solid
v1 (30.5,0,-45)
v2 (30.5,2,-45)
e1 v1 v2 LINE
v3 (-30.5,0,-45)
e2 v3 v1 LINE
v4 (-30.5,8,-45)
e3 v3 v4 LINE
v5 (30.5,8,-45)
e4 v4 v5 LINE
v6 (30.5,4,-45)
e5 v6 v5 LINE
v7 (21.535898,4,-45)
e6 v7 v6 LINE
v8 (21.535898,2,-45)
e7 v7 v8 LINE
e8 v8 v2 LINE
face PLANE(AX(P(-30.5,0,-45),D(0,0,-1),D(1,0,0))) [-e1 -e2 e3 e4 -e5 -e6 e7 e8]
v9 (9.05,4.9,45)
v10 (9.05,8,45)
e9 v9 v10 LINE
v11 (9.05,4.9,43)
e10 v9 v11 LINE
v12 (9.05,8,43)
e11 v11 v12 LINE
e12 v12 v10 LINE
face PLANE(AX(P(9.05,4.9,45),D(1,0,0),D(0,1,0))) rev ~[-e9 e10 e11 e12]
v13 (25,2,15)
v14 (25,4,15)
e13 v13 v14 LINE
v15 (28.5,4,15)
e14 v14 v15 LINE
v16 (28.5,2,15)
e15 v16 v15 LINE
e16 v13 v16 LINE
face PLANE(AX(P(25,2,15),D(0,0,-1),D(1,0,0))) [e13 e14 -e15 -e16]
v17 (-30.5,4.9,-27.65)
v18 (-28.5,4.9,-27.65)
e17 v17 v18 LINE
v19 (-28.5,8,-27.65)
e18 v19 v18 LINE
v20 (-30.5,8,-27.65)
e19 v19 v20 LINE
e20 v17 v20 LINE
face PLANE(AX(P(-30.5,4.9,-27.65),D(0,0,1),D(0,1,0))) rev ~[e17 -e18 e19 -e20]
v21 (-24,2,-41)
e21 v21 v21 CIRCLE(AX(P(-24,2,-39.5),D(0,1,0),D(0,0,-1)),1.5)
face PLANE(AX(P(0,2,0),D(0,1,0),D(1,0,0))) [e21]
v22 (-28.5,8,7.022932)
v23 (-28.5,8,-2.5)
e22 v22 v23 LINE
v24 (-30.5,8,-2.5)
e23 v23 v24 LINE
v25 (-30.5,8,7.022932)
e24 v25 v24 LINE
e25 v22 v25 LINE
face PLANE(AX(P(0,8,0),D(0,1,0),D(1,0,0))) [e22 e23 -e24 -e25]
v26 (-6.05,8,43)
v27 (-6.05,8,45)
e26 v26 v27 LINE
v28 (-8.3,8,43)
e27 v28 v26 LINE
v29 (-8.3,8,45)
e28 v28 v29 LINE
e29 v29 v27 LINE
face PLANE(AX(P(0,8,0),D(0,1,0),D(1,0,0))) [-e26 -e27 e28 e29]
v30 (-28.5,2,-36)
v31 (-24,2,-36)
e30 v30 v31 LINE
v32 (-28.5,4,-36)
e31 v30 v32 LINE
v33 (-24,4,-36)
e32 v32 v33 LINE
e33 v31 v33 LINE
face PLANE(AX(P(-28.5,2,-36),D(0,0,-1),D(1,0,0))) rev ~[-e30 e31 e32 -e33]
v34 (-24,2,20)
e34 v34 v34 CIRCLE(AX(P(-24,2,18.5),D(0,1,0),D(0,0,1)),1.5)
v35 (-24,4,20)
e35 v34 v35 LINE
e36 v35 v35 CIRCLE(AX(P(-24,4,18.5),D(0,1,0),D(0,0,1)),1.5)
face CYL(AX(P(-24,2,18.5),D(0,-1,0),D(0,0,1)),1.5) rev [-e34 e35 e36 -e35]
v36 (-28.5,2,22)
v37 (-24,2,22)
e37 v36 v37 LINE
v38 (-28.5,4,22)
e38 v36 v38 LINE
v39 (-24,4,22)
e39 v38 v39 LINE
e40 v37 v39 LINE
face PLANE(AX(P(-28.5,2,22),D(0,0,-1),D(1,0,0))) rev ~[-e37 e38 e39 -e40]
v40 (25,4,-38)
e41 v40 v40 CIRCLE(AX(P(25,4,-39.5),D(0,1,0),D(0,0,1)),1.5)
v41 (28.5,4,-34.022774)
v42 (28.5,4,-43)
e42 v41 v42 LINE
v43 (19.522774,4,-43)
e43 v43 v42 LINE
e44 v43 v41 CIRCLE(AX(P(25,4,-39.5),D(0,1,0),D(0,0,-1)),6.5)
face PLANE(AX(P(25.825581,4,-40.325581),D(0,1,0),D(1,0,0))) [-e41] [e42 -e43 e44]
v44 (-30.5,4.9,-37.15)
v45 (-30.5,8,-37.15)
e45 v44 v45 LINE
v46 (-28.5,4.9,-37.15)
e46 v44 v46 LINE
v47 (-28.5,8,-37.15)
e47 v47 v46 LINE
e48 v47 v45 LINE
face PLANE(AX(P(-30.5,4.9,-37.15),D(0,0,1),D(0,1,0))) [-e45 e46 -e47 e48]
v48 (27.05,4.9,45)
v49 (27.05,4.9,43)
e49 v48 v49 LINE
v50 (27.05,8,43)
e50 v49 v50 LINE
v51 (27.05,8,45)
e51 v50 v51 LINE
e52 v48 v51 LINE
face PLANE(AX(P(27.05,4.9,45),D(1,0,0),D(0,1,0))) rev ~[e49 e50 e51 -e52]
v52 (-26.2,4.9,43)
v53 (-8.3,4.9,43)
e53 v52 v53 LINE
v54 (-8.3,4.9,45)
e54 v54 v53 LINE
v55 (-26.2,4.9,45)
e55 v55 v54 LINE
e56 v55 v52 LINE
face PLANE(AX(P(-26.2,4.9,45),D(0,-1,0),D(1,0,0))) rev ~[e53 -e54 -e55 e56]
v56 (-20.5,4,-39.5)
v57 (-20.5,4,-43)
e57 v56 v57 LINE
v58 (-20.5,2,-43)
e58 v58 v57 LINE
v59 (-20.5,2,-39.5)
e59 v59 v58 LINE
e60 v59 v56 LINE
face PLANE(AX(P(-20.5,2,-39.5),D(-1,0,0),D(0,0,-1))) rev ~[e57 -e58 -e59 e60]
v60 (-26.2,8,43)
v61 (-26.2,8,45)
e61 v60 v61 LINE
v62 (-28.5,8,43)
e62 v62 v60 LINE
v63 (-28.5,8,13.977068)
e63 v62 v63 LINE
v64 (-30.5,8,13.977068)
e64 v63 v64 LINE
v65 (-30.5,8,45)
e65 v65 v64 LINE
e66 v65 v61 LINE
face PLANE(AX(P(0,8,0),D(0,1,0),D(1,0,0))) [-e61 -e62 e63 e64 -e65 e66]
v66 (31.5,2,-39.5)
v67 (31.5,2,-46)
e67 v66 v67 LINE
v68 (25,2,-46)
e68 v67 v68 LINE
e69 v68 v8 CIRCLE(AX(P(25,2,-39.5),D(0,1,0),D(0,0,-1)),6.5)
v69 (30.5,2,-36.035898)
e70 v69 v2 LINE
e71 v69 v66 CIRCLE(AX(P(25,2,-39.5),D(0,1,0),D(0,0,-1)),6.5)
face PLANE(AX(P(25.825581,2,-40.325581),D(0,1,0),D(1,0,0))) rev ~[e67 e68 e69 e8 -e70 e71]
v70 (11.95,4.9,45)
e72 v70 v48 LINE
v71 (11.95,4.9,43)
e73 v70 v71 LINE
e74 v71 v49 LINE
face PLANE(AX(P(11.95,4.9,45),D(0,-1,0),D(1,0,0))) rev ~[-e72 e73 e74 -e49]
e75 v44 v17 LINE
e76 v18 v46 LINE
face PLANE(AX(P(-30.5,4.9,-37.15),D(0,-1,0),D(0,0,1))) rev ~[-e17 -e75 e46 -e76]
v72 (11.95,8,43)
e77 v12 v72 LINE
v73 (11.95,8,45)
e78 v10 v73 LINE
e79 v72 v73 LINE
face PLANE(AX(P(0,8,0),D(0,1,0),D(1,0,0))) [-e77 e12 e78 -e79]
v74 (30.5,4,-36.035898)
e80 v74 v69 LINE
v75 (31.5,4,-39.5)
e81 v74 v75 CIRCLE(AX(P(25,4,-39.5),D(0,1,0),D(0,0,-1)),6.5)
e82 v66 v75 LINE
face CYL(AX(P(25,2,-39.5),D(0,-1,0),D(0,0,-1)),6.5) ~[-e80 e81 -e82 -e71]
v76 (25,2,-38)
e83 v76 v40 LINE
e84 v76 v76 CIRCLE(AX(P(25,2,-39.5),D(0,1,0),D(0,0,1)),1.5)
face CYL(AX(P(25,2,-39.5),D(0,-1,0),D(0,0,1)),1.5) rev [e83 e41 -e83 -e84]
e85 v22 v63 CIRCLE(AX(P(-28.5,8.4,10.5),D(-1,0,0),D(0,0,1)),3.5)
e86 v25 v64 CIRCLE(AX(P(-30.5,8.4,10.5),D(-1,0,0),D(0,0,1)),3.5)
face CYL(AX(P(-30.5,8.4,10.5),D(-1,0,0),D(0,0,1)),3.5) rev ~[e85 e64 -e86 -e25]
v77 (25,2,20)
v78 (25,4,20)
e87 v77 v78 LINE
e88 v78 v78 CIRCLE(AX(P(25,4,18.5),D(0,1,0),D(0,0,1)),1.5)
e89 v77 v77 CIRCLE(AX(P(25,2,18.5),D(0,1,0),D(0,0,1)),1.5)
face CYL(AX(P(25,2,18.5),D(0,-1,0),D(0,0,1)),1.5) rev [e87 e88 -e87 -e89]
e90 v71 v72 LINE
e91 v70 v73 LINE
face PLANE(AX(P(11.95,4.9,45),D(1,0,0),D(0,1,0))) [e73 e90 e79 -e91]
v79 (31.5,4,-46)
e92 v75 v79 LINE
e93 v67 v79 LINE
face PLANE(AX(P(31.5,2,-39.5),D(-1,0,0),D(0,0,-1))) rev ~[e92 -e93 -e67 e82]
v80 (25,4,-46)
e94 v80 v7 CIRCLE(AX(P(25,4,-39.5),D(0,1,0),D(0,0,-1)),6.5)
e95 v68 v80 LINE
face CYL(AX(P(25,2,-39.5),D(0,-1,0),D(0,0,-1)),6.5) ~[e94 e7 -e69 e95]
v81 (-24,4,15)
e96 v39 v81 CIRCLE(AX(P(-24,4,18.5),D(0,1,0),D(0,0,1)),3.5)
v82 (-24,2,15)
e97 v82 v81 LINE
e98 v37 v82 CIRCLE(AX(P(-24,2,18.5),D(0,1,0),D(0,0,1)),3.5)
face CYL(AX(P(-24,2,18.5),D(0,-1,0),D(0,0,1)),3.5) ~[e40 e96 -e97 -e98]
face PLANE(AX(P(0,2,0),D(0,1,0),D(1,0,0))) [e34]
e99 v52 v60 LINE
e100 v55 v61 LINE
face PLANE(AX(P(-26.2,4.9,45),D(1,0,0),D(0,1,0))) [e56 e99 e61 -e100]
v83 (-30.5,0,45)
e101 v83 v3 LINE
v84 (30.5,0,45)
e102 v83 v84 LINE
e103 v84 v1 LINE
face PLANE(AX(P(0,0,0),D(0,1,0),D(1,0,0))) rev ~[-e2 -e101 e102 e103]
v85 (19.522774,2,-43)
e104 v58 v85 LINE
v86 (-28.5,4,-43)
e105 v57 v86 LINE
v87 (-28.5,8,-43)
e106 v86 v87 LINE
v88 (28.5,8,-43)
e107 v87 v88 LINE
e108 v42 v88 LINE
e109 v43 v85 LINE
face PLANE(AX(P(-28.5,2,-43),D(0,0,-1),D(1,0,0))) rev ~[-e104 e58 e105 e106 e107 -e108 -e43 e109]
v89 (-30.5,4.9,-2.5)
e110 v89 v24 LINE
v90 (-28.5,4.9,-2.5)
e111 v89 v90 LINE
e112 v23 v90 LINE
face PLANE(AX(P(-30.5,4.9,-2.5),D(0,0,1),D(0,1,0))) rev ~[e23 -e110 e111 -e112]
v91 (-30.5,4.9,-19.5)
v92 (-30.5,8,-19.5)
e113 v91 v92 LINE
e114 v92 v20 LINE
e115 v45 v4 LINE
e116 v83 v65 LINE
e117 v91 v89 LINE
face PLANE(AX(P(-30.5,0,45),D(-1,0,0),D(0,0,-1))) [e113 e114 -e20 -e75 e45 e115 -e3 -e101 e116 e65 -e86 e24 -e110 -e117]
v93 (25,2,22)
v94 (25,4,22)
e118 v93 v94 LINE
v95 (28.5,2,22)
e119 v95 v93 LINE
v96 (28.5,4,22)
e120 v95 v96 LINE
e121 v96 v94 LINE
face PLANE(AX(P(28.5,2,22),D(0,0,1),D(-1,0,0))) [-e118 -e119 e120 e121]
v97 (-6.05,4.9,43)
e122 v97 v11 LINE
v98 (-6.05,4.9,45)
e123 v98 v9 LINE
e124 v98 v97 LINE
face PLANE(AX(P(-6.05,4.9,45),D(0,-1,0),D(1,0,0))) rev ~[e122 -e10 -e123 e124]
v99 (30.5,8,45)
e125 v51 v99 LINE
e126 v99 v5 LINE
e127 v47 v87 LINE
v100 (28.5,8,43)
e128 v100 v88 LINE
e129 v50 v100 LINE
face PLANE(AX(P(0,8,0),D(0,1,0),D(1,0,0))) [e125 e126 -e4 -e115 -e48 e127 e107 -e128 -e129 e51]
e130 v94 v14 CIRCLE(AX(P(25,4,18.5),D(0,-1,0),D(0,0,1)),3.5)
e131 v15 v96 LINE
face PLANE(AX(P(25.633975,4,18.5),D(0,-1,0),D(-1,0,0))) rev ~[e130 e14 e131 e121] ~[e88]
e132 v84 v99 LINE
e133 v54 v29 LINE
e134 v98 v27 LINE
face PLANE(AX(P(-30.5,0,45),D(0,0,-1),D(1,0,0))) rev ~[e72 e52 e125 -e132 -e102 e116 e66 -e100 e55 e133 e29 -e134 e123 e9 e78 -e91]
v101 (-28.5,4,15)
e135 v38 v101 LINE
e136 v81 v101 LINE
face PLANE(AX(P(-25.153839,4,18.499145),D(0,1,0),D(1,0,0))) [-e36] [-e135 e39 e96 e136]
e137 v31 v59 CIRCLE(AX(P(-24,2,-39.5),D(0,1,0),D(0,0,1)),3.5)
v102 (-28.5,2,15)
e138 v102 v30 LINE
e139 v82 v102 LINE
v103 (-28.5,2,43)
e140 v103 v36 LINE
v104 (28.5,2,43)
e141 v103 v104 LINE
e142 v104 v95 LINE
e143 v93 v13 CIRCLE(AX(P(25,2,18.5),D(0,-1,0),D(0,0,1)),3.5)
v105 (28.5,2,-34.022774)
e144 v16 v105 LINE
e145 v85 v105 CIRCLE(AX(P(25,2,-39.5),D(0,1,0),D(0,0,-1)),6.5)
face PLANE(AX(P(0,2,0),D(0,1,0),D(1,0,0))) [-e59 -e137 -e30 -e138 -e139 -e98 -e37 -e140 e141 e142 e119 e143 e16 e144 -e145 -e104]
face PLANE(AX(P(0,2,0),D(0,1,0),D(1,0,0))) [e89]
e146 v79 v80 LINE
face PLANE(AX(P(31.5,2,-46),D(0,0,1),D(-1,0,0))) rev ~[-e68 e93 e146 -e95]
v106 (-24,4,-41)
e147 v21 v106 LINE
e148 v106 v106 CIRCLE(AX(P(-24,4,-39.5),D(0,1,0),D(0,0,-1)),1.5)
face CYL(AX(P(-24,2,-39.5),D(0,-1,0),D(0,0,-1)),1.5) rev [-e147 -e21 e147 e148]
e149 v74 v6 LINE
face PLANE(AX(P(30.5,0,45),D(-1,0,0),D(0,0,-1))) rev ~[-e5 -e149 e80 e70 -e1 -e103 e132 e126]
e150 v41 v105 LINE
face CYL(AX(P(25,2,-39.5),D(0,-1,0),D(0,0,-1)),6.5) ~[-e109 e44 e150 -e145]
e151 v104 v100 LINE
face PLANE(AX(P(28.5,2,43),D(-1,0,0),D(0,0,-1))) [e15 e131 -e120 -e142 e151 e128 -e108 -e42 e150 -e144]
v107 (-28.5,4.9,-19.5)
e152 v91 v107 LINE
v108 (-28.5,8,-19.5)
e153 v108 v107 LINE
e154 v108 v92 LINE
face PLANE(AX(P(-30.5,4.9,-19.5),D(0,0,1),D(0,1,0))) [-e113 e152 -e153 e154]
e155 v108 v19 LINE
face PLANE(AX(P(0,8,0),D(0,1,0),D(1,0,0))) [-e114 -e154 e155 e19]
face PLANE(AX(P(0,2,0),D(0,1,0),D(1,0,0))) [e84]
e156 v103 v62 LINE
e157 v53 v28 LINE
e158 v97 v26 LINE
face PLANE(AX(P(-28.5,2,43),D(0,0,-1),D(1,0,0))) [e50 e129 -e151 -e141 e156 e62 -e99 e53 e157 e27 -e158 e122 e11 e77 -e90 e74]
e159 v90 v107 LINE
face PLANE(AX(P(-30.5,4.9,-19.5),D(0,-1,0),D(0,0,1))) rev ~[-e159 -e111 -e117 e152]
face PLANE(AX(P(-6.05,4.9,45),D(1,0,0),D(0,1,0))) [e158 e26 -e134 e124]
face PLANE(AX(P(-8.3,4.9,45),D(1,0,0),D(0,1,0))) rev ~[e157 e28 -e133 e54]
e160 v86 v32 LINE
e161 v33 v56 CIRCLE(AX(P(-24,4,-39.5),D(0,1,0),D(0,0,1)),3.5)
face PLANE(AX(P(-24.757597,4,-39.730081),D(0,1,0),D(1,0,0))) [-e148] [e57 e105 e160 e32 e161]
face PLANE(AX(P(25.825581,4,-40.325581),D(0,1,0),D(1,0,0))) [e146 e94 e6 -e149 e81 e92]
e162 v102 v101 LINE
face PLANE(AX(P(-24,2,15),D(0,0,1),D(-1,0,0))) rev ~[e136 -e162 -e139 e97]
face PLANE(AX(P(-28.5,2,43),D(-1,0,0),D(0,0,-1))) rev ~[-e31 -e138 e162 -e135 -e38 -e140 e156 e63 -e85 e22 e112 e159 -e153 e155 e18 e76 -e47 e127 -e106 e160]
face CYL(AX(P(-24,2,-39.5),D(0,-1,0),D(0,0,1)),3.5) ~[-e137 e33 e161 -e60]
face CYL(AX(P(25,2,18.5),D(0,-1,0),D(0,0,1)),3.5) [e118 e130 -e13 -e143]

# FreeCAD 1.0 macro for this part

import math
import FreeCAD as App
import Part
import Sketcher

V = App.Vector


def add_polygon(sketch, points):
    """Adds a closed chain of lines whose ends are joined by coincident constraints."""
    first, n = sketch.GeometryCount, len(points)
    for a, b in zip(points, points[1:] + points[:1]):
        sketch.addGeometry(Part.LineSegment(App.Vector(*a, 0), App.Vector(*b, 0)), False)
    for i in range(n):
        sketch.addConstraint(Sketcher.Constraint("Coincident", first + i, 2, first + (i + 1) % n, 1))

doc = App.newDocument("Part")
body = doc.addObject("PartDesign::Body", "Body")

sketch1 = body.newObject("Sketcher::SketchObject", "Sketch")
sketch1.AttachmentSupport = (doc.getObject("XZ_Plane"), [""])
sketch1.MapMode = "FlatFace"
add_polygon(sketch1, [(-30, -45), (-30, 45), (30, 45), (30, -45)])
sketch1.addConstraint([
    Sketcher.Constraint("Vertical", 0),
    Sketcher.Constraint("Horizontal", 1),
    Sketcher.Constraint("Vertical", 2),
    Sketcher.Constraint("Horizontal", 3),
    Sketcher.Constraint("Symmetric", 0, 2, 2, 2, -1, 1),
    Sketcher.Constraint("DistanceX", 1, 1, 1, 2, 61.0),
    Sketcher.Constraint("DistanceY", 0, 1, 0, 2, 90.0),
])
pad1 = body.newObject("PartDesign::Pad", "Pad")
pad1.Profile = sketch1
pad1.Length = 8
pad1.Reversed = True

sketch2 = body.newObject("Sketcher::SketchObject", "Sketch001")
sketch2.AttachmentSupport = (doc.getObject("XZ_Plane"), [""])
sketch2.MapMode = "FlatFace"
sketch2.AttachmentOffset = App.Placement(V(0, 0, -2), App.Rotation())
add_polygon(sketch2, [(-28, -43), (-28, 43), (28, 43), (28, -43)])
sketch2.addConstraint([
    Sketcher.Constraint("Vertical", 0),
    Sketcher.Constraint("Horizontal", 1),
    Sketcher.Constraint("Vertical", 2),
    Sketcher.Constraint("Horizontal", 3),
    Sketcher.Constraint("Symmetric", 0, 2, 2, 2, -1, 1),
    Sketcher.Constraint("DistanceX", 1, 1, 1, 2, 57.0),
    Sketcher.Constraint("DistanceY", 0, 1, 0, 2, 86.0),
])
pocket1 = body.newObject("PartDesign::Pocket", "Pocket")
pocket1.Profile = sketch2
pocket1.Length = 6

sketch3 = body.newObject("Sketcher::SketchObject", "Sketch002")
sketch3.AttachmentSupport = (doc.getObject("XZ_Plane"), [""])
sketch3.MapMode = "FlatFace"
sketch3.AttachmentOffset = App.Placement(V(0, 0, -2), App.Rotation())
sketch3.addGeometry([
    Part.LineSegment(V(28.5, 15, 0), V(25, 15, 0)),
    Part.ArcOfCircle(Part.Circle(V(25, 18.5, 0), V(0, 0, 1), 3.5), math.radians(90), math.radians(270)),
    Part.LineSegment(V(25, 22, 0), V(28.5, 22, 0)),
    Part.LineSegment(V(28.5, 22, 0), V(28.5, 15, 0)),
    Part.Circle(V(25, 18.5, 0), V(0, 0, 1), 1.5),
    Part.LineSegment(V(31.5, -39.5, 0), V(31.5, -46, 0)),
    Part.LineSegment(V(31.5, -46, 0), V(25, -46, 0)),
    Part.ArcOfCircle(Part.Circle(V(25, -39.5, 0), V(0, 0, 1), 6.5), math.radians(0), math.radians(270)),
    Part.Circle(V(25, -39.5, 0), V(0, 0, 1), 1.5),
    Part.LineSegment(V(-20.5, -39.5, 0), V(-20.5, -43, 0)),
    Part.LineSegment(V(-20.5, -43, 0), V(-28.5, -43, 0)),
    Part.LineSegment(V(-28.5, -43, 0), V(-28.5, -36, 0)),
    Part.LineSegment(V(-28.5, -36, 0), V(-24, -36, 0)),
    Part.ArcOfCircle(Part.Circle(V(-24, -39.5, 0), V(0, 0, 1), 3.5), math.radians(0), math.radians(90)),
    Part.Circle(V(-24, -39.5, 0), V(0, 0, 1), 1.5),
    Part.LineSegment(V(-24, 15, 0), V(-28.5, 15, 0)),
    Part.LineSegment(V(-28.5, 15, 0), V(-28.5, 22, 0)),
    Part.LineSegment(V(-28.5, 22, 0), V(-24, 22, 0)),
    Part.ArcOfCircle(Part.Circle(V(-24, 18.5, 0), V(0, 0, 1), 3.5), math.radians(-90), math.radians(90)),
    Part.Circle(V(-24, 18.5, 0), V(0, 0, 1), 1.5),
], False)
sketch3.addConstraint([
    Sketcher.Constraint("Tangent", 0, 2, 1, 2),
    Sketcher.Constraint("Tangent", 1, 1, 2, 1),
    Sketcher.Constraint("Coincident", 2, 2, 3, 1),
    Sketcher.Constraint("Coincident", 3, 2, 0, 1),
    Sketcher.Constraint("Coincident", 5, 2, 6, 1),
    Sketcher.Constraint("Tangent", 6, 2, 7, 2),
    Sketcher.Constraint("Tangent", 7, 1, 5, 1),
    Sketcher.Constraint("Coincident", 9, 2, 10, 1),
    Sketcher.Constraint("Coincident", 10, 2, 11, 1),
    Sketcher.Constraint("Coincident", 11, 2, 12, 1),
    Sketcher.Constraint("Tangent", 12, 2, 13, 2),
    Sketcher.Constraint("Tangent", 13, 1, 9, 1),
    Sketcher.Constraint("Coincident", 15, 2, 16, 1),
    Sketcher.Constraint("Coincident", 16, 2, 17, 1),
    Sketcher.Constraint("Tangent", 17, 2, 18, 2),
    Sketcher.Constraint("Tangent", 18, 1, 15, 1),
    Sketcher.Constraint("Horizontal", 0),
    Sketcher.Constraint("Horizontal", 2),
    Sketcher.Constraint("Vertical", 3),
    Sketcher.Constraint("Vertical", 5),
    Sketcher.Constraint("Horizontal", 6),
    Sketcher.Constraint("Vertical", 9),
    Sketcher.Constraint("Horizontal", 10),
    Sketcher.Constraint("Vertical", 11),
    Sketcher.Constraint("Horizontal", 12),
    Sketcher.Constraint("Horizontal", 15),
    Sketcher.Constraint("Horizontal", 17),
    Sketcher.Constraint("Coincident", 4, 3, 1, 3),
    Sketcher.Constraint("Coincident", 8, 3, 7, 3),
    Sketcher.Constraint("Coincident", 14, 3, 13, 3),
    Sketcher.Constraint("Coincident", 19, 3, 18, 3),
    Sketcher.Constraint("Equal", 4, 8),
    Sketcher.Constraint("Equal", 1, 13),
    Sketcher.Constraint("Equal", 8, 14),
    Sketcher.Constraint("Equal", 13, 18),
    Sketcher.Constraint("Equal", 14, 19),
    Sketcher.Constraint("Symmetric", 2, 2, 16, 2, -2),
    Sketcher.Constraint("Horizontal", 8, 3, 13, 3),
    Sketcher.Constraint("Vertical", 4, 3, 7, 3),
    Sketcher.Constraint("Vertical", 14, 3, 18, 3),
    Sketcher.Constraint("Vertical", 11, 2, 16, 2),
    Sketcher.Constraint("Equal", 2, 9),
    Sketcher.Constraint("Equal", 3, 11),
    Sketcher.Constraint("Diameter", 4, 3.0),
    Sketcher.Constraint("Radius", 1, 3.5),
    Sketcher.Constraint("Radius", 7, 6.5),
    Sketcher.Constraint("DistanceX", 10, 2, 10, 1, 8.0),
    Sketcher.Constraint("DistanceX", -1, 1, 1, 3, 25.0),
    Sketcher.Constraint("DistanceY", -1, 1, 0, 2, 15.0),
    Sketcher.Constraint("DistanceY", 5, 2, -1, 1, 46.0),
    Sketcher.Constraint("DistanceX", 15, 2, 15, 1, 4.506473),
])
pad2 = body.newObject("PartDesign::Pad", "Pad001")
pad2.Profile = sketch3
pad2.Length = 2
pad2.Reversed = True

sketch4 = body.newObject("Sketcher::SketchObject", "Sketch003")
sketch4.AttachmentSupport = (doc.getObject("YZ_Plane"), [""])
sketch4.MapMode = "FlatFace"
sketch4.AttachmentOffset = App.Placement(V(0, 0, -30.5), App.Rotation())
sketch4.addGeometry(Part.Circle(V(8.4, 10.5, 0), V(0, 0, 1), 3.5), False)
sketch4.addConstraint([
    Sketcher.Constraint("Diameter", 0, 7.0),
    Sketcher.Constraint("DistanceX", -1, 1, 0, 3, 8.4),
    Sketcher.Constraint("DistanceY", -1, 1, 0, 3, 10.5),
])
pocket2 = body.newObject("PartDesign::Pocket", "Pocket001")
pocket2.Profile = sketch4
pocket2.Length = 2
pocket2.Reversed = True

sketch5 = body.newObject("Sketcher::SketchObject", "Sketch004")
sketch5.AttachmentSupport = (doc.getObject("YZ_Plane"), [""])
sketch5.MapMode = "FlatFace"
sketch5.AttachmentOffset = App.Placement(V(0, 0, -30.5), App.Rotation())
add_polygon(sketch5, [(11, -20), (5, -20), (5, -2), (11, -2)])
sketch5.addConstraint([
    Sketcher.Constraint("Horizontal", 0),
    Sketcher.Constraint("Vertical", 1),
    Sketcher.Constraint("Horizontal", 2),
    Sketcher.Constraint("Vertical", 3),
    Sketcher.Constraint("DistanceY", 1, 1, 1, 2, 17.0),
    Sketcher.Constraint("DistanceX", 0, 2, 0, 1, 6.5),
    Sketcher.Constraint("DistanceX", -1, 1, 0, 2, 4.9),
    Sketcher.Constraint("DistanceY", 0, 2, -1, 1, 19.5),
])
pocket3 = body.newObject("PartDesign::Pocket", "Pocket002")
pocket3.Profile = sketch5
pocket3.Length = 2
pocket3.Reversed = True

sketch6 = body.newObject("Sketcher::SketchObject", "Sketch005")
sketch6.AttachmentSupport = (doc.getObject("YZ_Plane"), [""])
sketch6.MapMode = "FlatFace"
sketch6.AttachmentOffset = App.Placement(V(0, 0, -30.5), App.Rotation())
add_polygon(sketch6, [(8.9, -37.1), (4.9, -37.1), (4.9, -27.6), (8.9, -27.6)])
sketch6.addConstraint([
    Sketcher.Constraint("Horizontal", 0),
    Sketcher.Constraint("Vertical", 1),
    Sketcher.Constraint("Horizontal", 2),
    Sketcher.Constraint("Vertical", 3),
    Sketcher.Constraint("DistanceX", 0, 2, 0, 1, 4.0),
    Sketcher.Constraint("DistanceY", 1, 1, 1, 2, 9.5),
    Sketcher.Constraint("DistanceX", -1, 1, 0, 2, 4.9),
    Sketcher.Constraint("DistanceY", 0, 2, -1, 1, 37.15),
])
pocket4 = body.newObject("PartDesign::Pocket", "Pocket003")
pocket4.Profile = sketch6
pocket4.Type = "UpToFirst"
pocket4.Reversed = True

sketch7 = body.newObject("Sketcher::SketchObject", "Sketch006")
sketch7.AttachmentSupport = (doc.getObject("XY_Plane"), [""])
sketch7.MapMode = "FlatFace"
sketch7.AttachmentOffset = App.Placement(V(0, 0, 45), App.Rotation())
add_polygon(sketch7, [(-26, 20), (-26, 5), (-8, 5), (-8, 20)])
sketch7.addConstraint([
    Sketcher.Constraint("Vertical", 0),
    Sketcher.Constraint("Horizontal", 1),
    Sketcher.Constraint("Vertical", 2),
    Sketcher.Constraint("Horizontal", 3),
    Sketcher.Constraint("DistanceX", 1, 1, 1, 2, 17.9),
    Sketcher.Constraint("DistanceY", 0, 2, 0, 1, 15.5),
    Sketcher.Constraint("DistanceX", 0, 2, -1, 1, 26.2),
    Sketcher.Constraint("DistanceY", -1, 1, 0, 2, 4.9),
])
pocket5 = body.newObject("PartDesign::Pocket", "Pocket004")
pocket5.Profile = sketch7
pocket5.Length = 2

sketch8 = body.newObject("Sketcher::SketchObject", "Sketch007")
sketch8.AttachmentSupport = (doc.getObject("XY_Plane"), [""])
sketch8.MapMode = "FlatFace"
sketch8.AttachmentOffset = App.Placement(V(0, 0, 45), App.Rotation())
add_polygon(sketch8, [(-6, 21), (-6, 5), (9, 5), (9, 21)])
sketch8.addConstraint([
    Sketcher.Constraint("Vertical", 0),
    Sketcher.Constraint("Horizontal", 1),
    Sketcher.Constraint("Vertical", 2),
    Sketcher.Constraint("Horizontal", 3),
    Sketcher.Constraint("DistanceY", 0, 2, 0, 1, 16.0),
    Sketcher.Constraint("DistanceX", 1, 1, 1, 2, 15.1),
    Sketcher.Constraint("DistanceY", -1, 1, 0, 2, 4.9),
    Sketcher.Constraint("DistanceX", 0, 2, -1, 1, 6.05),
])
pocket6 = body.newObject("PartDesign::Pocket", "Pocket005")
pocket6.Profile = sketch8
pocket6.Length = 2

sketch9 = body.newObject("Sketcher::SketchObject", "Sketch008")
sketch9.AttachmentSupport = (doc.getObject("XY_Plane"), [""])
sketch9.MapMode = "FlatFace"
sketch9.AttachmentOffset = App.Placement(V(0, 0, 45), App.Rotation())
add_polygon(sketch9, [(12, 21), (12, 5), (27, 5), (27, 21)])
sketch9.addConstraint([
    Sketcher.Constraint("Vertical", 0),
    Sketcher.Constraint("Horizontal", 1),
    Sketcher.Constraint("Vertical", 2),
    Sketcher.Constraint("Horizontal", 3),
    Sketcher.Constraint("DistanceY", 0, 2, 0, 1, 16.0),
    Sketcher.Constraint("DistanceX", 1, 1, 1, 2, 15.1),
    Sketcher.Constraint("DistanceY", -1, 1, 0, 2, 4.9),
    Sketcher.Constraint("DistanceX", -1, 1, 0, 2, 11.95),
])
pocket7 = body.newObject("PartDesign::Pocket", "Pocket006")
pocket7.Profile = sketch9
pocket7.Length = 2

doc.recompute()
